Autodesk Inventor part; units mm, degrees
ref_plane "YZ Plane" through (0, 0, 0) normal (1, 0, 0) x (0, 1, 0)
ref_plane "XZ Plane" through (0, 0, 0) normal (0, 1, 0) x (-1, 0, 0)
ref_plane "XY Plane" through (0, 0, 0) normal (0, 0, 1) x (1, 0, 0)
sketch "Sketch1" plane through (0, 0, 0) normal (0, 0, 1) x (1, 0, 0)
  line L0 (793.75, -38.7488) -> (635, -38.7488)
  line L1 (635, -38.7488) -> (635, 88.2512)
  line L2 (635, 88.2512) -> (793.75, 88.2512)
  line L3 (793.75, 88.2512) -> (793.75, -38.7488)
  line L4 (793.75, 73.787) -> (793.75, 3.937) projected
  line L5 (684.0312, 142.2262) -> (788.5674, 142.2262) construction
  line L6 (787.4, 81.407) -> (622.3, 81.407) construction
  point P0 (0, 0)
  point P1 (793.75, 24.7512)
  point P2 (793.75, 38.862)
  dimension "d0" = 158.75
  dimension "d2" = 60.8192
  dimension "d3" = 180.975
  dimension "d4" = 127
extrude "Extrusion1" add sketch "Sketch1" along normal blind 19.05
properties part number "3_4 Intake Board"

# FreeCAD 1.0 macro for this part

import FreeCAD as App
import Part
import Sketcher
Q = App.Units.Quantity

doc = App.newDocument("Part")
body = doc.addObject("PartDesign::Body", "Body")

# Sketch on XY plane
sketch1 = body.newObject("Sketcher::SketchObject", "Sketch")
sketch1.AttachmentSupport = (doc.getObject("XY_Plane"), [""])
sketch1.MapMode = "FlatFace"
sketch1.addGeometry([
    Part.LineSegment(App.Vector(635, -38.7488, 0), App.Vector(793.75, -38.7488, 0)),
    Part.LineSegment(App.Vector(793.75, -38.7488, 0), App.Vector(793.75, 88.2512, 0)),
    Part.LineSegment(App.Vector(793.75, 88.2512, 0), App.Vector(635, 88.2512, 0)),
    Part.LineSegment(App.Vector(635, 88.2512, 0), App.Vector(635, -38.7488, 0)),
], False)
sketch1.addConstraint([
    Sketcher.Constraint("Coincident", 0, 2, 1, 1),
    Sketcher.Constraint("Coincident", 1, 2, 2, 1),
    Sketcher.Constraint("Coincident", 2, 2, 3, 1),
    Sketcher.Constraint("Coincident", 3, 2, 0, 1),
    Sketcher.Constraint("Horizontal", 0),
    Sketcher.Constraint("Vertical", 1),
    Sketcher.Constraint("Horizontal", 2),
    Sketcher.Constraint("Vertical", 3),
    Sketcher.Constraint("DistanceY", 1, 1, 1, 2, Q("5 in")),
    Sketcher.Constraint("DistanceX", 0, 1, 0, 2, Q("6.25 in")),
    Sketcher.Constraint("DistanceX", -1, 1, 2, 2, Q("25 in")),
    Sketcher.Constraint("DistanceY", 0, 2, -1, 1, Q("38.7488 mm")),
])
pad1 = body.newObject("PartDesign::Pad", "Pad")
pad1.Profile = sketch1
pad1.Length = Q("0.75 in")

doc.recompute()
